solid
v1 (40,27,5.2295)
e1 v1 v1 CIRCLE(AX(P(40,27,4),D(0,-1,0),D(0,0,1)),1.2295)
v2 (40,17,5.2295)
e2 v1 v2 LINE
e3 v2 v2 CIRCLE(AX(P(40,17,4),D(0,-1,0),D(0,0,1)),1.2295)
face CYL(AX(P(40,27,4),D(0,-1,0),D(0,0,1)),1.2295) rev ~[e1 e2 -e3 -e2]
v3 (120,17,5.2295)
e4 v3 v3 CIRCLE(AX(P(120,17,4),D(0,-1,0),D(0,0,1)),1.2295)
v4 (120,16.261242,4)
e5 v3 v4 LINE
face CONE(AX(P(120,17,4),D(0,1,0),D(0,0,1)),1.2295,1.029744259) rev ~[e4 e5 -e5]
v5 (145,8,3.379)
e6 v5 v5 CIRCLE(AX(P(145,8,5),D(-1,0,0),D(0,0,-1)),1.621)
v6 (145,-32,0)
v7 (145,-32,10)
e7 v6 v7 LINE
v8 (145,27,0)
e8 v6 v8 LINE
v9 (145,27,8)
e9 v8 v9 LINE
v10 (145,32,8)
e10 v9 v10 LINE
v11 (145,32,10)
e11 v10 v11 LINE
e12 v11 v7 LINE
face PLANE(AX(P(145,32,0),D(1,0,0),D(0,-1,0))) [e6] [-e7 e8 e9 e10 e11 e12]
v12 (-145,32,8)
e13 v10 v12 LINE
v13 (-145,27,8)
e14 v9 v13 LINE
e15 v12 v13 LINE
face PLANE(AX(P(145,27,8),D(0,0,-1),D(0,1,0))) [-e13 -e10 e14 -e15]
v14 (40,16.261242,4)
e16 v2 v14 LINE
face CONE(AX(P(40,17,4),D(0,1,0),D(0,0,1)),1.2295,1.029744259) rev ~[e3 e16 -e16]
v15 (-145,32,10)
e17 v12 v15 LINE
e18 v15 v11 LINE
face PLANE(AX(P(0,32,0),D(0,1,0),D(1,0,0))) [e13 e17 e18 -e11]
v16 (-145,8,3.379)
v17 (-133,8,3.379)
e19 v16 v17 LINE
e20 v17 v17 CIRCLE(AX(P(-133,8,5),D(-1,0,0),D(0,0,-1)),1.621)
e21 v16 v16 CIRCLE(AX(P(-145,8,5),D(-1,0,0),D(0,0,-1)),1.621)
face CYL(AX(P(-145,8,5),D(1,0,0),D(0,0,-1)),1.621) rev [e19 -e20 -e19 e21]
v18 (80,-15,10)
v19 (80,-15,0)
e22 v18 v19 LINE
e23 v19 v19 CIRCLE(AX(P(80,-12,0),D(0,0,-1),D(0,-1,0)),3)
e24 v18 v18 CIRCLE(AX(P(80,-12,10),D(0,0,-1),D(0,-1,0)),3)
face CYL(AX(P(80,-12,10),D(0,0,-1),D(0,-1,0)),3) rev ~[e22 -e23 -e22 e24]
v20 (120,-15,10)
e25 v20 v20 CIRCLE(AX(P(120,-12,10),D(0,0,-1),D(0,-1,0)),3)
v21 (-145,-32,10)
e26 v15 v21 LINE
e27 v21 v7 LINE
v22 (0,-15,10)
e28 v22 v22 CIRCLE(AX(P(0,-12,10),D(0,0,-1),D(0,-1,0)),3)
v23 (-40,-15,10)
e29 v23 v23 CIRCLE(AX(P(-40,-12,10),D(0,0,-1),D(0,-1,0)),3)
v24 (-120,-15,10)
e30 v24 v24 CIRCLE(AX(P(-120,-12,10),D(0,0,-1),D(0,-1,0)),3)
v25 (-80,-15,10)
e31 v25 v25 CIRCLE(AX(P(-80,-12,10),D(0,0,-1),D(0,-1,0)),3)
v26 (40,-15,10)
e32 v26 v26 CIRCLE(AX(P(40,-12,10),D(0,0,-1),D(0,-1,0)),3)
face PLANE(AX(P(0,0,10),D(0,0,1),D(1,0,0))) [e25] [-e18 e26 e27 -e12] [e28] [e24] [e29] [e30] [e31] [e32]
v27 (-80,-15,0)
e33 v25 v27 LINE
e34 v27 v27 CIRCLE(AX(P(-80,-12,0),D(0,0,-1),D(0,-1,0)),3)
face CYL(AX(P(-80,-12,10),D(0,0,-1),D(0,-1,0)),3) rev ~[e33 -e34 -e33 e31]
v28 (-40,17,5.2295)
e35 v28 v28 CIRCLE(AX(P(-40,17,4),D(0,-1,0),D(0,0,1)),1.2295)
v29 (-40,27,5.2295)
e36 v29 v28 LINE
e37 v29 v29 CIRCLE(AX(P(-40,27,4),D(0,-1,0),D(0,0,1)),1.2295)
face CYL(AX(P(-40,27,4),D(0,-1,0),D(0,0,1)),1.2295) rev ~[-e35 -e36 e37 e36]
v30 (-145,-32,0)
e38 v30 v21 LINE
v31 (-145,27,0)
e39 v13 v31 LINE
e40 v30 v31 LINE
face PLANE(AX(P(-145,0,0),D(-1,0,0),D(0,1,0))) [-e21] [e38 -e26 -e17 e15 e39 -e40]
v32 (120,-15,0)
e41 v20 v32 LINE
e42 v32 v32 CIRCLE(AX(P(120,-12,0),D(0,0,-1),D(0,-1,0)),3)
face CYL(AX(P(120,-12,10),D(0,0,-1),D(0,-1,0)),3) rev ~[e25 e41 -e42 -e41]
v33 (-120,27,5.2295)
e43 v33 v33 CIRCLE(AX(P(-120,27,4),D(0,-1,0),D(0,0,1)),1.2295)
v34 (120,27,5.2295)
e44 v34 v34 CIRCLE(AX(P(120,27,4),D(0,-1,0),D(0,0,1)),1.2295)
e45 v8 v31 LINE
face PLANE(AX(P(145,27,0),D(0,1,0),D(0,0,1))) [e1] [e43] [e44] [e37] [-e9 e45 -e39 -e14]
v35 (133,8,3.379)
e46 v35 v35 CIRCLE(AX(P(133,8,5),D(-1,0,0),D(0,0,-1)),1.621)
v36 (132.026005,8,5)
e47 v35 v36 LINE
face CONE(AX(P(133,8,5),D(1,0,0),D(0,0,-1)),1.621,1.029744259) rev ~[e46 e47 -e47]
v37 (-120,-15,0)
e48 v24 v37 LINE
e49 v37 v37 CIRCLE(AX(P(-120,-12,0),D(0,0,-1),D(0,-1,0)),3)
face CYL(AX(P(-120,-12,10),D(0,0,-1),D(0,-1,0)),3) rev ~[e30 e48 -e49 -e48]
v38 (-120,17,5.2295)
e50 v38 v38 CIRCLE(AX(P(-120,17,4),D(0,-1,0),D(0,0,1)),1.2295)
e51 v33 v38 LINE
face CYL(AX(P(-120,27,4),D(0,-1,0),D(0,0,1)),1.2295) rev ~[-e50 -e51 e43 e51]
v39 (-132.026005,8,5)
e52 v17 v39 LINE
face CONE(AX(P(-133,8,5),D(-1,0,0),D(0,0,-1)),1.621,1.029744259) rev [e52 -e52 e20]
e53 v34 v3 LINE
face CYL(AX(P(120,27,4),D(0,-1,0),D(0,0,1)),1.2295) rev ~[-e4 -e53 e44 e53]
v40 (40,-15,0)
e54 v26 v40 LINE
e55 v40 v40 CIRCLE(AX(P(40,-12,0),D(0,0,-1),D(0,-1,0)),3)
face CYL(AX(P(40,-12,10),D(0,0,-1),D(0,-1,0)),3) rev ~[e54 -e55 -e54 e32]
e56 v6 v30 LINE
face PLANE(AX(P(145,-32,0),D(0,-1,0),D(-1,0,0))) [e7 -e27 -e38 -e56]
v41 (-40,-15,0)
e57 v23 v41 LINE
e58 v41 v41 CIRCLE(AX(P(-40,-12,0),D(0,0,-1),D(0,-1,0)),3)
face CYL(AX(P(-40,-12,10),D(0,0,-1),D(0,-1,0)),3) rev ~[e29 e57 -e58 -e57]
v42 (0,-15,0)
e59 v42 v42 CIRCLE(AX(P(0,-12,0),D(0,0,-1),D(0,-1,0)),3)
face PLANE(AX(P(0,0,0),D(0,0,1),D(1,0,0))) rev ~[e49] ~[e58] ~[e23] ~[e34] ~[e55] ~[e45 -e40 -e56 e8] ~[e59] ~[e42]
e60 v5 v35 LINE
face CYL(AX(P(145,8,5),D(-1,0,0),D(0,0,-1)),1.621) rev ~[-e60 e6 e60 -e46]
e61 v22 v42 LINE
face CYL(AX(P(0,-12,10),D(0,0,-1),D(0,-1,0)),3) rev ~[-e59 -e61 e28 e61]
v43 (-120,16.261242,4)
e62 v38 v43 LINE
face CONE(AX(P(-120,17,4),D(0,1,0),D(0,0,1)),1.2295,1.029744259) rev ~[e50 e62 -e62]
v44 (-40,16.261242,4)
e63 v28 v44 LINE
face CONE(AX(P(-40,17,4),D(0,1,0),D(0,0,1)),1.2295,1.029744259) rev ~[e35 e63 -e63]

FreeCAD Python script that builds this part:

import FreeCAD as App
import Part
import Sketcher
Q = App.Units.Quantity

doc = App.newDocument("Part")
body = doc.addObject("PartDesign::Body", "Body")

# Sketch on XY plane
sketch1 = body.newObject("Sketcher::SketchObject", "Sketch")
sketch1.AttachmentSupport = (doc.getObject("XY_Plane"), [""])
sketch1.MapMode = "FlatFace"
sketch1.addGeometry([
    Part.LineSegment(App.Vector(145, 32, 0), App.Vector(-145, 32, 0)),
    Part.LineSegment(App.Vector(-145, 32, 0), App.Vector(-145, -32, 0)),
    Part.LineSegment(App.Vector(-145, -32, 0), App.Vector(145, -32, 0)),
    Part.LineSegment(App.Vector(145, -32, 0), App.Vector(145, 32, 0)),
], False)
sketch1.addConstraint([
    Sketcher.Constraint("Coincident", 0, 2, 1, 1),
    Sketcher.Constraint("Coincident", 1, 2, 2, 1),
    Sketcher.Constraint("Coincident", 2, 2, 3, 1),
    Sketcher.Constraint("Coincident", 3, 2, 0, 1),
    Sketcher.Constraint("Horizontal", 0),
    Sketcher.Constraint("Vertical", 1),
    Sketcher.Constraint("Horizontal", 2),
    Sketcher.Constraint("Vertical", 3),
    Sketcher.Constraint("Symmetric", 0, 2, 2, 2, -1, 1),
    Sketcher.Constraint("DistanceX", 0, 2, 0, 1, Q("290 mm")),
    Sketcher.Constraint("DistanceY", 1, 2, 1, 1, Q("64 mm")),
])
pad1 = body.newObject("PartDesign::Pad", "Pad")
pad1.Profile = sketch1
pad1.Length = 10

# Sketch on YZ plane
sketch2 = body.newObject("Sketcher::SketchObject", "Sketch001")
sketch2.AttachmentSupport = (doc.getObject("YZ_Plane"), [""])
sketch2.MapMode = "FlatFace"
sketch2.AttachmentOffset = App.Placement(App.Vector(0, 0, 145), App.Rotation())
sketch2.addGeometry([
    Part.LineSegment(App.Vector(27, 8, 0), App.Vector(27, 0, 0)),
    Part.LineSegment(App.Vector(27, 0, 0), App.Vector(32, 0, 0)),
    Part.LineSegment(App.Vector(32, 0, 0), App.Vector(32, 8, 0)),
    Part.LineSegment(App.Vector(32, 8, 0), App.Vector(27, 8, 0)),
], False)
sketch2.addConstraint([
    Sketcher.Constraint("Coincident", 0, 2, 1, 1),
    Sketcher.Constraint("Coincident", 1, 2, 2, 1),
    Sketcher.Constraint("Coincident", 2, 2, 3, 1),
    Sketcher.Constraint("Coincident", 3, 2, 0, 1),
    Sketcher.Constraint("Vertical", 0),
    Sketcher.Constraint("Horizontal", 1),
    Sketcher.Constraint("Vertical", 2),
    Sketcher.Constraint("Horizontal", 3),
    Sketcher.Constraint("PointOnObject", 0, 2, -1),
    Sketcher.Constraint("DistanceX", 1, 1, 1, 2, Q("5 mm")),
    Sketcher.Constraint("DistanceY", 0, 2, 0, 1, Q("8 mm")),
    Sketcher.Constraint("DistanceX", -1, 1, 0, 2, Q("27 mm")),
])
pocket1 = body.newObject("PartDesign::Pocket", "Pocket")
pocket1.Profile = sketch2
pocket1.Type = "ThroughAll"

# Sketch on XY plane
sketch3 = body.newObject("Sketcher::SketchObject", "Sketch002")
sketch3.AttachmentSupport = (doc.getObject("XY_Plane"), [""])
sketch3.MapMode = "FlatFace"
sketch3.AttachmentOffset = App.Placement(App.Vector(0, 0, 10), App.Rotation())
sketch3.addGeometry(Part.Circle(App.Vector(-120, -12, 0), App.Vector(0, 0, 1), 3), False)
sketch3.addConstraint([
    Sketcher.Constraint("Diameter", 0, Q("6 mm")),
    Sketcher.Constraint("DistanceX", 0, 3, -1, 1, Q("120 mm")),
    Sketcher.Constraint("DistanceY", 0, 3, -1, 1, Q("12 mm")),
])
doc.recompute()
hole = body.newObject("PartDesign::Hole", "Hole")
hole.Profile = sketch3
hole.ThreadType = "None"
hole.Diameter = 6
hole.DepthType = "ThroughAll"
doc.recompute()

linearpattern = body.newObject("PartDesign::LinearPattern", "LinearPattern")
linearpattern.Originals = [hole]
linearpattern.Direction = (doc.getObject("X_Axis"), [""])
linearpattern.Mode = "offset"
linearpattern.Offset = 40
linearpattern.Occurrences = 7
body.Tip = linearpattern

# Sketch on XZ plane
sketch4 = body.newObject("Sketcher::SketchObject", "Sketch003")
sketch4.AttachmentSupport = (doc.getObject("XZ_Plane"), [""])
sketch4.MapMode = "FlatFace"
sketch4.AttachmentOffset = App.Placement(App.Vector(0, 0, -27), App.Rotation())
sketch4.addGeometry(Part.Circle(App.Vector(-120, 4, 0), App.Vector(0, 0, 1), 1.2), False)
sketch4.addConstraint([
    Sketcher.Constraint("Diameter", 0, Q("2.459 mm")),
    Sketcher.Constraint("DistanceX", 0, 3, -1, 1, Q("120 mm")),
    Sketcher.Constraint("DistanceY", -1, 1, 0, 3, Q("4 mm")),
])
doc.recompute()
hole2 = body.newObject("PartDesign::Hole", "Hole001")
hole2.Profile = sketch4
hole2.ThreadType = "None"
hole2.Diameter = 2.459
hole2.DepthType = "Dimension"
hole2.Depth = 10
hole2.DrillPoint = "Angled"
hole2.DrillPointAngle = 118
hole2.Reversed = True
doc.recompute()

linearpattern2 = body.newObject("PartDesign::LinearPattern", "LinearPattern001")
linearpattern2.Originals = [hole2]
linearpattern2.Direction = (doc.getObject("X_Axis"), [""])
linearpattern2.Mode = "offset"
linearpattern2.Offset = 80
linearpattern2.Occurrences = 4
body.Tip = linearpattern2

# Sketch on YZ plane
sketch5 = body.newObject("Sketcher::SketchObject", "Sketch004")
sketch5.AttachmentSupport = (doc.getObject("YZ_Plane"), [""])
sketch5.MapMode = "FlatFace"
sketch5.AttachmentOffset = App.Placement(App.Vector(0, 0, 145), App.Rotation())
sketch5.addGeometry(Part.Circle(App.Vector(8, 5, 0), App.Vector(0, 0, 1), 1.6), False)
sketch5.addConstraint([
    Sketcher.Constraint("Diameter", 0, Q("3.242 mm")),
    Sketcher.Constraint("DistanceX", -1, 1, 0, 3, Q("8 mm")),
    Sketcher.Constraint("DistanceY", -1, 1, 0, 3, Q("5 mm")),
])
doc.recompute()
hole3 = body.newObject("PartDesign::Hole", "Hole002")
hole3.Profile = sketch5
hole3.ThreadType = "None"
hole3.Diameter = 3.242
hole3.DepthType = "Dimension"
hole3.Depth = 12
hole3.DrillPoint = "Angled"
hole3.DrillPointAngle = 118
doc.recompute()

mirrored = body.newObject("PartDesign::Mirrored", "Mirrored")
mirrored.Originals = [hole3]
mirrored.MirrorPlane = (doc.getObject("YZ_Plane"), [""])
body.Tip = mirrored

doc.recompute()
